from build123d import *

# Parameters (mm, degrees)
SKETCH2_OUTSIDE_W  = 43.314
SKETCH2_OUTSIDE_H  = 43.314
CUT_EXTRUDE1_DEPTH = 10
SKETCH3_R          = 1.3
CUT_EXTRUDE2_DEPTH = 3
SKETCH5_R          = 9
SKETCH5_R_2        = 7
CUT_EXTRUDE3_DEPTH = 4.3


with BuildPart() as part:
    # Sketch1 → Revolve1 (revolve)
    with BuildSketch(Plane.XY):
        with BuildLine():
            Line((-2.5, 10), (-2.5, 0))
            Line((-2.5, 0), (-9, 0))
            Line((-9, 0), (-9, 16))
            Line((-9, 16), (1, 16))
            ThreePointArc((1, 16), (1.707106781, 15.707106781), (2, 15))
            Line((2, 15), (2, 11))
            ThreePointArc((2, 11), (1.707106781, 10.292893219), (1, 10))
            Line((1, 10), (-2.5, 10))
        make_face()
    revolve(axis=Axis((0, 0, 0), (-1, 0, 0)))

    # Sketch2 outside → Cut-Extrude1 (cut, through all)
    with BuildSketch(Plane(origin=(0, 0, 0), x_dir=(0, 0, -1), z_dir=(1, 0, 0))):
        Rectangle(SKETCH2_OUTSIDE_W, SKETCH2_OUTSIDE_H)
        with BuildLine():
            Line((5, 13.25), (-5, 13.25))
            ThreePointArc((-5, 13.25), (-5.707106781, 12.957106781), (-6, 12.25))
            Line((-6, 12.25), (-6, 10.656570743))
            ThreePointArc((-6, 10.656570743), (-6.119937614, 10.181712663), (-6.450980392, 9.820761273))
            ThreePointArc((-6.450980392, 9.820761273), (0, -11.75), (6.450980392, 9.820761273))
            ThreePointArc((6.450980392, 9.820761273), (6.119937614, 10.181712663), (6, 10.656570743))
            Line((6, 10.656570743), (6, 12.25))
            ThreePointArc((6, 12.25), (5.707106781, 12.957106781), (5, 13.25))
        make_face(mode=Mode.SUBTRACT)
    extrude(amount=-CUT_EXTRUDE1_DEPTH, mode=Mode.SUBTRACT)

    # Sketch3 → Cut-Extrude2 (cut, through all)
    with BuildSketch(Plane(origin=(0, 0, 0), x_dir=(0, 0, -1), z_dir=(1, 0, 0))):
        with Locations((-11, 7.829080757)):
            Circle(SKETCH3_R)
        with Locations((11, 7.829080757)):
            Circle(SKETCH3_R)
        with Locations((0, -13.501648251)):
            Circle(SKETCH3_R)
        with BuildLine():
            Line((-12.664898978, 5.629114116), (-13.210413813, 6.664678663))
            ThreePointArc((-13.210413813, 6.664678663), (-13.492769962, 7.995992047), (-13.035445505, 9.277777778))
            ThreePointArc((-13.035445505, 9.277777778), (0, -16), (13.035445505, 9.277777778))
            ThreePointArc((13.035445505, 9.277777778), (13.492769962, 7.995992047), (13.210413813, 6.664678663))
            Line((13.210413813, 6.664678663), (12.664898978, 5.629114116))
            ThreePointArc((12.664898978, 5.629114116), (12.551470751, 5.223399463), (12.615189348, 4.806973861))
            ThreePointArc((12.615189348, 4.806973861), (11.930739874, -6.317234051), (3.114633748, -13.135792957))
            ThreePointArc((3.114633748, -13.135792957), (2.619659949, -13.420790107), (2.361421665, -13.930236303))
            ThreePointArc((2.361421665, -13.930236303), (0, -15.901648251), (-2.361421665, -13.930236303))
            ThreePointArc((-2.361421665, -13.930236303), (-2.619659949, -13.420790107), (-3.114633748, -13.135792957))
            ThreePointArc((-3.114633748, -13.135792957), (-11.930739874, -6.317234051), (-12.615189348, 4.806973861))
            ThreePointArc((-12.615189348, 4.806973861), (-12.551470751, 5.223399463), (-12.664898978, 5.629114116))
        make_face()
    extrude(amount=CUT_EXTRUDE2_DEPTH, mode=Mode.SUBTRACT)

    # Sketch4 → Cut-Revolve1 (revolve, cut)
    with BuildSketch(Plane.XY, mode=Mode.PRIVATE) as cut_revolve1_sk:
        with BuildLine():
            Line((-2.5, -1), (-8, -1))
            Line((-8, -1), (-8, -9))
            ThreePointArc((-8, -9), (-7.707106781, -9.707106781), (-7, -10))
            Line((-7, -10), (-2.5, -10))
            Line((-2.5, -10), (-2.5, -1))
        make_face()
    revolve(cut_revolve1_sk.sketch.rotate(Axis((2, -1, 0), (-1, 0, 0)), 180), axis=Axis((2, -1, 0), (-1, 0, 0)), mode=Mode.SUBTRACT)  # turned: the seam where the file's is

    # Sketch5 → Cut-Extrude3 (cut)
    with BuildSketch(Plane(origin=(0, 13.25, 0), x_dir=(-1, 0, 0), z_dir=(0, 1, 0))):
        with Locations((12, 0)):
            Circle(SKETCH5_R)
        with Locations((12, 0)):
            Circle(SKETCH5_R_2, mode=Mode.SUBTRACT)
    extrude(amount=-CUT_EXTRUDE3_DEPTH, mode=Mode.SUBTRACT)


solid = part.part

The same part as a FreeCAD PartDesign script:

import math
import FreeCAD as App
import Part
import Sketcher
from FreeCAD import Vector


def add_polygon(sketch, points):
    """Adds a closed chain of lines whose ends are joined by coincident constraints."""
    first, n = sketch.GeometryCount, len(points)
    for a, b in zip(points, points[1:] + points[:1]):
        sketch.addGeometry(Part.LineSegment(App.Vector(*a, 0), App.Vector(*b, 0)), False)
    for i in range(n):
        sketch.addConstraint(Sketcher.Constraint("Coincident", first + i, 2, first + (i + 1) % n, 1))

doc = App.newDocument("Part")
body = doc.addObject("PartDesign::Body", "Body")

sketch1 = body.newObject("Sketcher::SketchObject", "Sketch")
sketch1.AttachmentSupport = (doc.getObject("XY_Plane"), [""])
sketch1.MapMode = "FlatFace"
sketch1.addGeometry([
    Part.LineSegment(Vector(-2.5, 0, 0), Vector(-2.5, 10, 0)),
    Part.LineSegment(Vector(-2.5, 10, 0), Vector(1, 10, 0)),
    Part.ArcOfCircle(Part.Circle(Vector(1, 11, 0), Vector(0, 0, 1), 1), math.radians(-90), math.radians(0)),
    Part.LineSegment(Vector(2, 11, 0), Vector(2, 15, 0)),
    Part.ArcOfCircle(Part.Circle(Vector(1, 15, 0), Vector(0, 0, 1), 1), math.radians(0), math.radians(90)),
    Part.LineSegment(Vector(1, 16, 0), Vector(-9, 16, 0)),
    Part.LineSegment(Vector(-9, 16, 0), Vector(-9, 0, 0)),
    Part.LineSegment(Vector(-9, 0, 0), Vector(-2.5, 0, 0)),
], False)
sketch1.addConstraint([
    Sketcher.Constraint("Coincident", 0, 2, 1, 1),
    Sketcher.Constraint("Tangent", 1, 2, 2, 1),
    Sketcher.Constraint("Tangent", 2, 2, 3, 1),
    Sketcher.Constraint("Tangent", 3, 2, 4, 1),
    Sketcher.Constraint("Tangent", 4, 2, 5, 1),
    Sketcher.Constraint("Coincident", 5, 2, 6, 1),
    Sketcher.Constraint("Coincident", 6, 2, 7, 1),
    Sketcher.Constraint("Coincident", 7, 2, 0, 1),
    Sketcher.Constraint("Vertical", 0),
    Sketcher.Constraint("Horizontal", 1),
    Sketcher.Constraint("Vertical", 3),
    Sketcher.Constraint("Horizontal", 5),
    Sketcher.Constraint("Vertical", 6),
    Sketcher.Constraint("Horizontal", 7),
    Sketcher.Constraint("Equal", 2, 4),
    Sketcher.Constraint("PointOnObject", 6, 2, -1),
    Sketcher.Constraint("Equal", 5, 0),
    Sketcher.Constraint("Radius", 2, 1.0),
    Sketcher.Constraint("DistanceX", 5, 2, 5, 1, 10.0),
    Sketcher.Constraint("DistanceY", 3, 1, 3, 2, 4.0),
    Sketcher.Constraint("DistanceX", 1, 1, 1, 2, 3.5),
    Sketcher.Constraint("DistanceX", -1, 1, 2, 3, 1.0),
])
revolution = body.newObject("PartDesign::Revolution", "Revolution")
revolution.Profile = sketch1
revolution.ReferenceAxis = (sketch1, ["H_Axis"])
revolution.Angle = 360

sketch2 = body.newObject("Sketcher::SketchObject", "Sketch001")
sketch2.AttachmentSupport = (doc.getObject("YZ_Plane"), [""])
sketch2.MapMode = "FlatFace"
add_polygon(sketch2, [(21.7, 21.7), (-21.7, 21.7), (-21.7, -21.7), (21.7, -21.7)])
sketch2.addGeometry(Part.LineSegment(Vector(13.2, 5, 0), Vector(13.2, -5, 0)), False)
sketch2.addGeometry(Part.ArcOfCircle(Part.Circle(Vector(12.2, -5, 0), Vector(0, 0, 1), 1), math.radians(-90), math.radians(0)), False)
sketch2.addGeometry(Part.LineSegment(Vector(12.2, -6, 0), Vector(10.7, -6, 0)), False)
sketch2.addGeometry(Part.ArcOfCircle(Part.Circle(Vector(10.7, -7, 0), Vector(0, 0, 1), 1), math.radians(90), math.radians(147)), False)
sketch2.addGeometry(Part.ArcOfCircle(Part.Circle(Vector(0, 0, 0), Vector(0, 0, 1), 11.8), math.radians(33), math.radians(327)), False)
sketch2.addGeometry(Part.ArcOfCircle(Part.Circle(Vector(10.7, 7, 0), Vector(0, 0, 1), 1), math.radians(-147), math.radians(-90)), False)
sketch2.addGeometry(Part.LineSegment(Vector(10.7, 6, 0), Vector(12.2, 6, 0)), False)
sketch2.addGeometry(Part.ArcOfCircle(Part.Circle(Vector(12.2, 5, 0), Vector(0, 0, 1), 1), math.radians(0), math.radians(90)), False)
sketch2.addConstraint([
    Sketcher.Constraint("Tangent", 4, 2, 5, 2),
    Sketcher.Constraint("Tangent", 5, 1, 6, 1),
    Sketcher.Constraint("Tangent", 6, 2, 7, 1),
    Sketcher.Constraint("Tangent", 7, 2, 8, 2),
    Sketcher.Constraint("Tangent", 8, 1, 9, 1),
    Sketcher.Constraint("Tangent", 9, 2, 10, 1),
    Sketcher.Constraint("Tangent", 10, 2, 11, 2),
    Sketcher.Constraint("Tangent", 11, 1, 4, 1),
    Sketcher.Constraint("Horizontal", 0),
    Sketcher.Constraint("Vertical", 1),
    Sketcher.Constraint("Horizontal", 2),
    Sketcher.Constraint("Vertical", 3),
    Sketcher.Constraint("Vertical", 4),
    Sketcher.Constraint("Horizontal", 6),
    Sketcher.Constraint("Horizontal", 10),
    Sketcher.Constraint("Coincident", 8, 3, -1, 1),
    Sketcher.Constraint("Equal", 5, 7),
    Sketcher.Constraint("Equal", 7, 9),
    Sketcher.Constraint("Equal", 9, 11),
    Sketcher.Constraint("Symmetric", 0, 2, 2, 2, -1, 1),
    Sketcher.Constraint("Vertical", 7, 3, 9, 3),
    Sketcher.Constraint("Equal", 2, 1),
    Sketcher.Constraint("Radius", 5, 1.0),
    Sketcher.Constraint("DistanceY", 4, 2, 4, 1, 10.0),
    Sketcher.Constraint("Radius", 8, 11.75),
    Sketcher.Constraint("DistanceX", 0, 2, 0, 1, 43.314),
    Sketcher.Constraint("DistanceX", -1, 1, 5, 3, 12.25),
])
pocket1 = body.newObject("PartDesign::Pocket", "Pocket")
pocket1.Profile = sketch2
pocket1.Type = "ThroughAll"

sketch3 = body.newObject("Sketcher::SketchObject", "Sketch002")
sketch3.AttachmentSupport = (doc.getObject("YZ_Plane"), [""])
sketch3.MapMode = "FlatFace"
sketch3.addGeometry([
    Part.Circle(Vector(7.8, 11, 0), Vector(0, 0, 1), 1.3),
    Part.Circle(Vector(7.8, -11, 0), Vector(0, 0, 1), 1.3),
    Part.Circle(Vector(-13.5, 0, 0), Vector(0, 0, 1), 1.3),
    Part.LineSegment(Vector(5.6, 12.7, 0), Vector(6.7, 13.2, 0)),
    Part.ArcOfCircle(Part.Circle(Vector(7.8, 11, 0), Vector(0, 0, 1), 2.5), math.radians(55), math.radians(118)),
    Part.ArcOfCircle(Part.Circle(Vector(0, 0, 0), Vector(0, 0, 1), 16), math.radians(55), math.radians(305)),
    Part.ArcOfCircle(Part.Circle(Vector(7.8, -11, 0), Vector(0, 0, 1), 2.5), math.radians(-118), math.radians(-55)),
    Part.LineSegment(Vector(6.7, -13.2, 0), Vector(5.6, -12.7, 0)),
    Part.ArcOfCircle(Part.Circle(Vector(5.2, -13.5, 0), Vector(0, 0, 1), 1), math.radians(62), math.radians(111)),
    Part.ArcOfCircle(Part.Circle(Vector(0, 0, 0), Vector(0, 0, 1), 13.5), math.radians(-167), math.radians(-69)),
    Part.ArcOfCircle(Part.Circle(Vector(-14.1, -3.3, 0), Vector(0, 0, 1), 1), math.radians(13), math.radians(80)),
    Part.ArcOfCircle(Part.Circle(Vector(-13.5, 0, 0), Vector(0, 0, 1), 2.4), math.radians(100), math.radians(260)),
    Part.ArcOfCircle(Part.Circle(Vector(-14.1, 3.3, 0), Vector(0, 0, 1), 1), math.radians(-80), math.radians(-13)),
    Part.ArcOfCircle(Part.Circle(Vector(0, 0, 0), Vector(0, 0, 1), 13.5), math.radians(69), math.radians(167)),
    Part.ArcOfCircle(Part.Circle(Vector(5.2, 13.5, 0), Vector(0, 0, 1), 1), math.radians(-111), math.radians(-62)),
], False)
sketch3.addConstraint([
    Sketcher.Constraint("Tangent", 3, 2, 4, 2),
    Sketcher.Constraint("Tangent", 4, 1, 5, 1),
    Sketcher.Constraint("Tangent", 5, 2, 6, 2),
    Sketcher.Constraint("Tangent", 6, 1, 7, 1),
    Sketcher.Constraint("Tangent", 7, 2, 8, 1),
    Sketcher.Constraint("Tangent", 8, 2, 9, 2),
    Sketcher.Constraint("Tangent", 9, 1, 10, 1),
    Sketcher.Constraint("Tangent", 10, 2, 11, 2),
    Sketcher.Constraint("Tangent", 11, 1, 12, 1),
    Sketcher.Constraint("Tangent", 12, 2, 13, 2),
    Sketcher.Constraint("Tangent", 13, 1, 14, 1),
    Sketcher.Constraint("Tangent", 14, 2, 3, 1),
    Sketcher.Constraint("Coincident", 5, 3, -1, 1),
    Sketcher.Constraint("Coincident", 9, 3, -1, 1),
    Sketcher.Constraint("Coincident", 13, 3, -1, 1),
    Sketcher.Constraint("Coincident", 4, 3, 0, 3),
    Sketcher.Constraint("Coincident", 6, 3, 1, 3),
    Sketcher.Constraint("Coincident", 11, 3, 2, 3),
    Sketcher.Constraint("Equal", 0, 1),
    Sketcher.Constraint("Equal", 1, 2),
    Sketcher.Constraint("Equal", 4, 6),
    Sketcher.Constraint("Equal", 8, 10),
    Sketcher.Constraint("Equal", 10, 12),
    Sketcher.Constraint("Equal", 9, 13),
    Sketcher.Constraint("Equal", 12, 14),
    Sketcher.Constraint("Symmetric", 3, 2, 6, 1, -1),
    Sketcher.Constraint("PointOnObject", 2, 3, -1),
    Sketcher.Constraint("Radius", 5, 16.0),
    Sketcher.Constraint("Radius", 8, 1.0),
    Sketcher.Constraint("Diameter", 0, 2.6),
    Sketcher.Constraint("Radius", 9, 13.5),
    Sketcher.Constraint("Radius", 11, 2.4),
    Sketcher.Constraint("DistanceY", -1, 1, 0, 3, 11.0),
    Sketcher.Constraint("Radius", 4, 2.498352),
    Sketcher.Constraint("DistanceY", 7, 2, -1, 1, 12.664899),
    Sketcher.Constraint("DistanceY", 8, 3, 10, 3, 10.2043),
])
pocket2 = body.newObject("PartDesign::Pocket", "Pocket001")
pocket2.Profile = sketch3
pocket2.Type = "ThroughAll"
pocket2.Reversed = True

sketch4 = body.newObject("Sketcher::SketchObject", "Sketch003")
sketch4.AttachmentSupport = (doc.getObject("XY_Plane"), [""])
sketch4.MapMode = "FlatFace"
sketch4.addGeometry([
    Part.LineSegment(Vector(-2.5, -1, 0), Vector(-8, -1, 0)),
    Part.LineSegment(Vector(-8, -1, 0), Vector(-8, -9, 0)),
    Part.ArcOfCircle(Part.Circle(Vector(-7, -9, 0), Vector(0, 0, 1), 1), math.radians(-180), math.radians(-90)),
    Part.LineSegment(Vector(-7, -10, 0), Vector(-2.5, -10, 0)),
    Part.LineSegment(Vector(-2.5, -10, 0), Vector(-2.5, -1, 0)),
], False)
sketch4.addGeometry(Part.LineSegment(Vector(-2.5, -1, 0), Vector(-8, -1, 0)), True)
sketch4.addConstraint([
    Sketcher.Constraint("Coincident", 0, 2, 1, 1),
    Sketcher.Constraint("Tangent", 1, 2, 2, 1),
    Sketcher.Constraint("Tangent", 2, 2, 3, 1),
    Sketcher.Constraint("Coincident", 3, 2, 4, 1),
    Sketcher.Constraint("Coincident", 4, 2, 0, 1),
    Sketcher.Constraint("Horizontal", 0),
    Sketcher.Constraint("Vertical", 1),
    Sketcher.Constraint("Horizontal", 3),
    Sketcher.Constraint("Vertical", 4),
    Sketcher.Constraint("Horizontal", 5),
    Sketcher.Constraint("Coincident", 5, 1, 4, 2),
    Sketcher.Constraint("Vertical", 1, 2, 5, 2),
    Sketcher.Constraint("Radius", 2, 1.0),
    Sketcher.Constraint("DistanceY", 1, 2, 1, 1, 8.0),
    Sketcher.Constraint("DistanceX", 0, 2, 0, 1, 5.5),
    Sketcher.Constraint("DistanceX", 2, 3, -1, 1, 7.0),
    Sketcher.Constraint("DistanceY", 2, 3, -1, 1, 9.0),
])
groove = body.newObject("PartDesign::Groove", "Groove")
groove.Profile = sketch4
groove.ReferenceAxis = (sketch4, ["Axis0"])
groove.Angle = 360

sketch5 = body.newObject("Sketcher::SketchObject", "Sketch004")
sketch5.AttachmentSupport = (doc.getObject("XZ_Plane"), [""])
sketch5.MapMode = "FlatFace"
sketch5.AttachmentOffset = App.Placement(Vector(0, 0, -13.25), App.Rotation())
sketch5.addGeometry([
    Part.Circle(Vector(-12, 0, 0), Vector(0, 0, 1), 9),
    Part.Circle(Vector(-12, 0, 0), Vector(0, 0, 1), 7),
], False)
sketch5.addConstraint([
    Sketcher.Constraint("Coincident", 1, 3, 0, 3),
    Sketcher.Constraint("PointOnObject", 0, 3, -1),
    Sketcher.Constraint("Diameter", 0, 18.0),
    Sketcher.Constraint("Diameter", 1, 14.0),
    Sketcher.Constraint("DistanceX", 0, 3, -1, 1, 12.0),
])
pocket3 = body.newObject("PartDesign::Pocket", "Pocket002")
pocket3.Profile = sketch5
pocket3.Length = 4.3
pocket3.Reversed = True

doc.recompute()
